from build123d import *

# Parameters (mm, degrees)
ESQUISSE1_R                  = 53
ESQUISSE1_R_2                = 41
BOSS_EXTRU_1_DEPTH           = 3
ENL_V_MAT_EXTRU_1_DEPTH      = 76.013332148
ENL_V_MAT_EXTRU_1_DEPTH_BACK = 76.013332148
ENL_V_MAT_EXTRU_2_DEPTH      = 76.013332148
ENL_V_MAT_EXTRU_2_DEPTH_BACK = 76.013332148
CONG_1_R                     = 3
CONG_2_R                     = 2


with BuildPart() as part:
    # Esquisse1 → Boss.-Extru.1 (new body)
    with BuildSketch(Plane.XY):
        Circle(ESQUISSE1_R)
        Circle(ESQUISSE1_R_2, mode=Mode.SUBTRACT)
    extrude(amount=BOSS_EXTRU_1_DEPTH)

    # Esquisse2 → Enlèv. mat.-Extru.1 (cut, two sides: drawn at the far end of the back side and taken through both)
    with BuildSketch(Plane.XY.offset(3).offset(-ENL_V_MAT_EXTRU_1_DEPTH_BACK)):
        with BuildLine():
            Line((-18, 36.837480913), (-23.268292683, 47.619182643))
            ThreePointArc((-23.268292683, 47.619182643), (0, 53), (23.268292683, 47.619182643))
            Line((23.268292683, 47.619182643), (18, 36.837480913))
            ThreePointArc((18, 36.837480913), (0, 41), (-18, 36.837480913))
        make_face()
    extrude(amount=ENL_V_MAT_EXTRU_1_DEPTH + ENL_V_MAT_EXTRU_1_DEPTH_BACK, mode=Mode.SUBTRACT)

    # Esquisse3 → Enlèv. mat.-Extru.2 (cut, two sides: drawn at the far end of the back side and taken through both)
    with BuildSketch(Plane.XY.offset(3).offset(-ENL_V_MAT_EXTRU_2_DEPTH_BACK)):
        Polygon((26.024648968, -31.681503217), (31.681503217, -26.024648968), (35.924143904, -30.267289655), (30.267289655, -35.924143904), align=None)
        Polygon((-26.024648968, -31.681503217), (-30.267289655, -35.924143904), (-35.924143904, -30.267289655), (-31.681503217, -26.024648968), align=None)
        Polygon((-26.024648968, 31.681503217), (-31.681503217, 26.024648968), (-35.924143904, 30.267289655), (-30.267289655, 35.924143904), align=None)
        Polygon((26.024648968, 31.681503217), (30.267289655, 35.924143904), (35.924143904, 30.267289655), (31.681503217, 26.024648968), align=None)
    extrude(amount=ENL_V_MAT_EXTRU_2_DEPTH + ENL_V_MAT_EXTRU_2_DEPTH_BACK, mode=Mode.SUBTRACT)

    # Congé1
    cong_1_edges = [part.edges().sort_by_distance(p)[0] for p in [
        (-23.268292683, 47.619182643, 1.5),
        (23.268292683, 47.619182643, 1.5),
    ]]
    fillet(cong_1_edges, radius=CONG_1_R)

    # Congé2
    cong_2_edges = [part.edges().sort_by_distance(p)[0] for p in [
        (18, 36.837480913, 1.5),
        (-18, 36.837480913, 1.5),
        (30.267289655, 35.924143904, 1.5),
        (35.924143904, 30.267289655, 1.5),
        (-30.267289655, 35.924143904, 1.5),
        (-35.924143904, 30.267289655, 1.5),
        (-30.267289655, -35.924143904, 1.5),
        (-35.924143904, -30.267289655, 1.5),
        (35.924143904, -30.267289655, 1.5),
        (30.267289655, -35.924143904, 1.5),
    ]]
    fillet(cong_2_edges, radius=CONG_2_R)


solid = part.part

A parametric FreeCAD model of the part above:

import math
import FreeCAD as App
import Part
import Sketcher
from FreeCAD import Vector


def edges_at(feature, points):
    """Names of the edges that pass closest to the given points."""
    edges = feature.Shape.Edges
    near = lambda p: min(range(len(edges)), key=lambda i: edges[i].distToShape(Part.Vertex(*p))[0])
    return sorted({f"Edge{near(p) + 1}" for p in points})

doc = App.newDocument("Part")
body = doc.addObject("PartDesign::Body", "Body")

sketch1 = body.newObject("Sketcher::SketchObject", "Sketch")
sketch1.AttachmentSupport = (doc.getObject("XY_Plane"), [""])
sketch1.MapMode = "FlatFace"
sketch1.addGeometry([
    Part.Circle(Vector(0, 0, 0), Vector(0, 0, 1), 53),
    Part.Circle(Vector(0, 0, 0), Vector(0, 0, 1), 41),
], False)
sketch1.addConstraint([
    Sketcher.Constraint("Coincident", 0, 3, -1, 1),
    Sketcher.Constraint("Coincident", 1, 3, -1, 1),
    Sketcher.Constraint("Diameter", 0, 106.0),
    Sketcher.Constraint("Diameter", 1, 82.0),
])
pad1 = body.newObject("PartDesign::Pad", "Pad")
pad1.Profile = sketch1
pad1.Length = 3

sketch2 = body.newObject("Sketcher::SketchObject", "Sketch001")
sketch2.AttachmentSupport = (doc.getObject("XY_Plane"), [""])
sketch2.MapMode = "FlatFace"
sketch2.AttachmentOffset = App.Placement(Vector(0, 0, 3), App.Rotation())
sketch2.addGeometry([
    Part.LineSegment(Vector(-23, 48, 0), Vector(-18, 37, 0)),
    Part.ArcOfCircle(Part.Circle(Vector(0, 0, 0), Vector(0, 0, 1), 41), math.radians(64), math.radians(116)),
    Part.LineSegment(Vector(18, 37, 0), Vector(23, 48, 0)),
    Part.ArcOfCircle(Part.Circle(Vector(0, 0, 0), Vector(0, 0, 1), 53), math.radians(64), math.radians(116)),
], False)
sketch2.addConstraint([
    Sketcher.Constraint("Coincident", 0, 2, 1, 2),
    Sketcher.Constraint("Coincident", 1, 1, 2, 1),
    Sketcher.Constraint("Coincident", 2, 2, 3, 1),
    Sketcher.Constraint("Coincident", 3, 2, 0, 1),
    Sketcher.Constraint("Coincident", 1, 3, -1, 1),
    Sketcher.Constraint("Coincident", 3, 3, -1, 1),
    Sketcher.Constraint("Horizontal", 0, 2, 1, 1),
    Sketcher.Constraint("Horizontal", 2, 2, 3, 2),
    Sketcher.Constraint("Radius", 1, 41.0),
    Sketcher.Constraint("Radius", 3, 53.0),
    Sketcher.Constraint("DistanceX", 0, 2, -1, 1, 18.0),
    Sketcher.Constraint("DistanceY", 1, 1, 2, 2, 10.781702),
])
pocket1 = body.newObject("PartDesign::Pocket", "Pocket")
pocket1.Profile = sketch2
pocket1.Type = "ThroughAll"
pocket1.Midplane = True

sketch3 = body.newObject("Sketcher::SketchObject", "Sketch002")
sketch3.AttachmentSupport = (doc.getObject("XY_Plane"), [""])
sketch3.MapMode = "FlatFace"
sketch3.AttachmentOffset = App.Placement(Vector(0, 0, 3), App.Rotation())
sketch3.addGeometry([
    Part.LineSegment(Vector(32, -26, 0), Vector(26, -32, 0)),
    Part.LineSegment(Vector(26, -32, 0), Vector(30, -36, 0)),
    Part.LineSegment(Vector(30, -36, 0), Vector(36, -30, 0)),
    Part.LineSegment(Vector(36, -30, 0), Vector(32, -26, 0)),
    Part.LineSegment(Vector(-30, -36, 0), Vector(-26, -32, 0)),
    Part.LineSegment(Vector(-26, -32, 0), Vector(-32, -26, 0)),
    Part.LineSegment(Vector(-32, -26, 0), Vector(-36, -30, 0)),
    Part.LineSegment(Vector(-36, -30, 0), Vector(-30, -36, 0)),
    Part.LineSegment(Vector(-32, 26, 0), Vector(-26, 32, 0)),
    Part.LineSegment(Vector(-26, 32, 0), Vector(-30, 36, 0)),
    Part.LineSegment(Vector(-30, 36, 0), Vector(-36, 30, 0)),
    Part.LineSegment(Vector(-36, 30, 0), Vector(-32, 26, 0)),
    Part.LineSegment(Vector(30, 36, 0), Vector(26, 32, 0)),
    Part.LineSegment(Vector(26, 32, 0), Vector(32, 26, 0)),
    Part.LineSegment(Vector(32, 26, 0), Vector(36, 30, 0)),
    Part.LineSegment(Vector(36, 30, 0), Vector(30, 36, 0)),
], False)
sketch3.addConstraint([
    Sketcher.Constraint("Coincident", 0, 2, 1, 1),
    Sketcher.Constraint("Coincident", 1, 2, 2, 1),
    Sketcher.Constraint("Coincident", 2, 2, 3, 1),
    Sketcher.Constraint("Coincident", 3, 2, 0, 1),
    Sketcher.Constraint("Coincident", 4, 2, 5, 1),
    Sketcher.Constraint("Coincident", 5, 2, 6, 1),
    Sketcher.Constraint("Coincident", 6, 2, 7, 1),
    Sketcher.Constraint("Coincident", 7, 2, 4, 1),
    Sketcher.Constraint("Coincident", 8, 2, 9, 1),
    Sketcher.Constraint("Coincident", 9, 2, 10, 1),
    Sketcher.Constraint("Coincident", 10, 2, 11, 1),
    Sketcher.Constraint("Coincident", 11, 2, 8, 1),
    Sketcher.Constraint("Coincident", 12, 2, 13, 1),
    Sketcher.Constraint("Coincident", 13, 2, 14, 1),
    Sketcher.Constraint("Coincident", 14, 2, 15, 1),
    Sketcher.Constraint("Coincident", 15, 2, 12, 1),
    Sketcher.Constraint("Symmetric", 0, 2, 8, 2, -1, 1),
    Sketcher.Constraint("Symmetric", 1, 2, 9, 2, -1, 1),
    Sketcher.Constraint("Symmetric", 2, 2, 10, 2, -1, 1),
    Sketcher.Constraint("Symmetric", 3, 2, 11, 2, -1, 1),
    Sketcher.Constraint("Symmetric", 4, 2, 12, 2, -1, 1),
    Sketcher.Constraint("Symmetric", 5, 2, 13, 2, -1, 1),
    Sketcher.Constraint("Symmetric", 6, 2, 14, 2, -1, 1),
    Sketcher.Constraint("Symmetric", 7, 2, 15, 2, -1, 1),
    Sketcher.Constraint("Symmetric", 0, 2, 4, 2, -2),
    Sketcher.Constraint("Symmetric", 3, 2, 5, 2, -2),
    Sketcher.Constraint("Symmetric", 2, 2, 6, 2, -2),
    Sketcher.Constraint("Symmetric", 1, 2, 7, 2, -2),
    Sketcher.Constraint("Perpendicular", 0, 1),
    Sketcher.Constraint("Perpendicular", 1, 2),
    Sketcher.Constraint("Perpendicular", 2, 3),
    Sketcher.Constraint("Perpendicular", 3, 4),
    Sketcher.Constraint("Distance", 0, 8.0),
    Sketcher.Constraint("Distance", 1, 6.0),
    Sketcher.Constraint("DistanceX", -1, 1, 0, 2, 26.024649),
    Sketcher.Constraint("DistanceY", 2, 2, -1, 1, 30.26729),
])
pocket2 = body.newObject("PartDesign::Pocket", "Pocket001")
pocket2.Profile = sketch3
pocket2.Type = "ThroughAll"
pocket2.Midplane = True
doc.recompute()

fillet = body.newObject("PartDesign::Fillet", "Fillet")
fillet.Base = (pocket2, edges_at(pocket2, [(-23.268, 47.619, 1.5), (23.268, 47.619, 1.5)]))
fillet.Radius = 3
doc.recompute()

fillet2 = body.newObject("PartDesign::Fillet", "Fillet001")
fillet2.Base = (fillet, edges_at(fillet, [
    (18, 36.837, 1.5),
    (-18, 36.837, 1.5),
    (30.267, 35.924, 1.5),
    (35.924, 30.267, 1.5),
    (-30.267, 35.924, 1.5),
    (-35.924, 30.267, 1.5),
    (-30.267, -35.924, 1.5),
    (-35.924, -30.267, 1.5),
    (35.924, -30.267, 1.5),
    (30.267, -35.924, 1.5),
]))
fillet2.Radius = 2

doc.recompute()
